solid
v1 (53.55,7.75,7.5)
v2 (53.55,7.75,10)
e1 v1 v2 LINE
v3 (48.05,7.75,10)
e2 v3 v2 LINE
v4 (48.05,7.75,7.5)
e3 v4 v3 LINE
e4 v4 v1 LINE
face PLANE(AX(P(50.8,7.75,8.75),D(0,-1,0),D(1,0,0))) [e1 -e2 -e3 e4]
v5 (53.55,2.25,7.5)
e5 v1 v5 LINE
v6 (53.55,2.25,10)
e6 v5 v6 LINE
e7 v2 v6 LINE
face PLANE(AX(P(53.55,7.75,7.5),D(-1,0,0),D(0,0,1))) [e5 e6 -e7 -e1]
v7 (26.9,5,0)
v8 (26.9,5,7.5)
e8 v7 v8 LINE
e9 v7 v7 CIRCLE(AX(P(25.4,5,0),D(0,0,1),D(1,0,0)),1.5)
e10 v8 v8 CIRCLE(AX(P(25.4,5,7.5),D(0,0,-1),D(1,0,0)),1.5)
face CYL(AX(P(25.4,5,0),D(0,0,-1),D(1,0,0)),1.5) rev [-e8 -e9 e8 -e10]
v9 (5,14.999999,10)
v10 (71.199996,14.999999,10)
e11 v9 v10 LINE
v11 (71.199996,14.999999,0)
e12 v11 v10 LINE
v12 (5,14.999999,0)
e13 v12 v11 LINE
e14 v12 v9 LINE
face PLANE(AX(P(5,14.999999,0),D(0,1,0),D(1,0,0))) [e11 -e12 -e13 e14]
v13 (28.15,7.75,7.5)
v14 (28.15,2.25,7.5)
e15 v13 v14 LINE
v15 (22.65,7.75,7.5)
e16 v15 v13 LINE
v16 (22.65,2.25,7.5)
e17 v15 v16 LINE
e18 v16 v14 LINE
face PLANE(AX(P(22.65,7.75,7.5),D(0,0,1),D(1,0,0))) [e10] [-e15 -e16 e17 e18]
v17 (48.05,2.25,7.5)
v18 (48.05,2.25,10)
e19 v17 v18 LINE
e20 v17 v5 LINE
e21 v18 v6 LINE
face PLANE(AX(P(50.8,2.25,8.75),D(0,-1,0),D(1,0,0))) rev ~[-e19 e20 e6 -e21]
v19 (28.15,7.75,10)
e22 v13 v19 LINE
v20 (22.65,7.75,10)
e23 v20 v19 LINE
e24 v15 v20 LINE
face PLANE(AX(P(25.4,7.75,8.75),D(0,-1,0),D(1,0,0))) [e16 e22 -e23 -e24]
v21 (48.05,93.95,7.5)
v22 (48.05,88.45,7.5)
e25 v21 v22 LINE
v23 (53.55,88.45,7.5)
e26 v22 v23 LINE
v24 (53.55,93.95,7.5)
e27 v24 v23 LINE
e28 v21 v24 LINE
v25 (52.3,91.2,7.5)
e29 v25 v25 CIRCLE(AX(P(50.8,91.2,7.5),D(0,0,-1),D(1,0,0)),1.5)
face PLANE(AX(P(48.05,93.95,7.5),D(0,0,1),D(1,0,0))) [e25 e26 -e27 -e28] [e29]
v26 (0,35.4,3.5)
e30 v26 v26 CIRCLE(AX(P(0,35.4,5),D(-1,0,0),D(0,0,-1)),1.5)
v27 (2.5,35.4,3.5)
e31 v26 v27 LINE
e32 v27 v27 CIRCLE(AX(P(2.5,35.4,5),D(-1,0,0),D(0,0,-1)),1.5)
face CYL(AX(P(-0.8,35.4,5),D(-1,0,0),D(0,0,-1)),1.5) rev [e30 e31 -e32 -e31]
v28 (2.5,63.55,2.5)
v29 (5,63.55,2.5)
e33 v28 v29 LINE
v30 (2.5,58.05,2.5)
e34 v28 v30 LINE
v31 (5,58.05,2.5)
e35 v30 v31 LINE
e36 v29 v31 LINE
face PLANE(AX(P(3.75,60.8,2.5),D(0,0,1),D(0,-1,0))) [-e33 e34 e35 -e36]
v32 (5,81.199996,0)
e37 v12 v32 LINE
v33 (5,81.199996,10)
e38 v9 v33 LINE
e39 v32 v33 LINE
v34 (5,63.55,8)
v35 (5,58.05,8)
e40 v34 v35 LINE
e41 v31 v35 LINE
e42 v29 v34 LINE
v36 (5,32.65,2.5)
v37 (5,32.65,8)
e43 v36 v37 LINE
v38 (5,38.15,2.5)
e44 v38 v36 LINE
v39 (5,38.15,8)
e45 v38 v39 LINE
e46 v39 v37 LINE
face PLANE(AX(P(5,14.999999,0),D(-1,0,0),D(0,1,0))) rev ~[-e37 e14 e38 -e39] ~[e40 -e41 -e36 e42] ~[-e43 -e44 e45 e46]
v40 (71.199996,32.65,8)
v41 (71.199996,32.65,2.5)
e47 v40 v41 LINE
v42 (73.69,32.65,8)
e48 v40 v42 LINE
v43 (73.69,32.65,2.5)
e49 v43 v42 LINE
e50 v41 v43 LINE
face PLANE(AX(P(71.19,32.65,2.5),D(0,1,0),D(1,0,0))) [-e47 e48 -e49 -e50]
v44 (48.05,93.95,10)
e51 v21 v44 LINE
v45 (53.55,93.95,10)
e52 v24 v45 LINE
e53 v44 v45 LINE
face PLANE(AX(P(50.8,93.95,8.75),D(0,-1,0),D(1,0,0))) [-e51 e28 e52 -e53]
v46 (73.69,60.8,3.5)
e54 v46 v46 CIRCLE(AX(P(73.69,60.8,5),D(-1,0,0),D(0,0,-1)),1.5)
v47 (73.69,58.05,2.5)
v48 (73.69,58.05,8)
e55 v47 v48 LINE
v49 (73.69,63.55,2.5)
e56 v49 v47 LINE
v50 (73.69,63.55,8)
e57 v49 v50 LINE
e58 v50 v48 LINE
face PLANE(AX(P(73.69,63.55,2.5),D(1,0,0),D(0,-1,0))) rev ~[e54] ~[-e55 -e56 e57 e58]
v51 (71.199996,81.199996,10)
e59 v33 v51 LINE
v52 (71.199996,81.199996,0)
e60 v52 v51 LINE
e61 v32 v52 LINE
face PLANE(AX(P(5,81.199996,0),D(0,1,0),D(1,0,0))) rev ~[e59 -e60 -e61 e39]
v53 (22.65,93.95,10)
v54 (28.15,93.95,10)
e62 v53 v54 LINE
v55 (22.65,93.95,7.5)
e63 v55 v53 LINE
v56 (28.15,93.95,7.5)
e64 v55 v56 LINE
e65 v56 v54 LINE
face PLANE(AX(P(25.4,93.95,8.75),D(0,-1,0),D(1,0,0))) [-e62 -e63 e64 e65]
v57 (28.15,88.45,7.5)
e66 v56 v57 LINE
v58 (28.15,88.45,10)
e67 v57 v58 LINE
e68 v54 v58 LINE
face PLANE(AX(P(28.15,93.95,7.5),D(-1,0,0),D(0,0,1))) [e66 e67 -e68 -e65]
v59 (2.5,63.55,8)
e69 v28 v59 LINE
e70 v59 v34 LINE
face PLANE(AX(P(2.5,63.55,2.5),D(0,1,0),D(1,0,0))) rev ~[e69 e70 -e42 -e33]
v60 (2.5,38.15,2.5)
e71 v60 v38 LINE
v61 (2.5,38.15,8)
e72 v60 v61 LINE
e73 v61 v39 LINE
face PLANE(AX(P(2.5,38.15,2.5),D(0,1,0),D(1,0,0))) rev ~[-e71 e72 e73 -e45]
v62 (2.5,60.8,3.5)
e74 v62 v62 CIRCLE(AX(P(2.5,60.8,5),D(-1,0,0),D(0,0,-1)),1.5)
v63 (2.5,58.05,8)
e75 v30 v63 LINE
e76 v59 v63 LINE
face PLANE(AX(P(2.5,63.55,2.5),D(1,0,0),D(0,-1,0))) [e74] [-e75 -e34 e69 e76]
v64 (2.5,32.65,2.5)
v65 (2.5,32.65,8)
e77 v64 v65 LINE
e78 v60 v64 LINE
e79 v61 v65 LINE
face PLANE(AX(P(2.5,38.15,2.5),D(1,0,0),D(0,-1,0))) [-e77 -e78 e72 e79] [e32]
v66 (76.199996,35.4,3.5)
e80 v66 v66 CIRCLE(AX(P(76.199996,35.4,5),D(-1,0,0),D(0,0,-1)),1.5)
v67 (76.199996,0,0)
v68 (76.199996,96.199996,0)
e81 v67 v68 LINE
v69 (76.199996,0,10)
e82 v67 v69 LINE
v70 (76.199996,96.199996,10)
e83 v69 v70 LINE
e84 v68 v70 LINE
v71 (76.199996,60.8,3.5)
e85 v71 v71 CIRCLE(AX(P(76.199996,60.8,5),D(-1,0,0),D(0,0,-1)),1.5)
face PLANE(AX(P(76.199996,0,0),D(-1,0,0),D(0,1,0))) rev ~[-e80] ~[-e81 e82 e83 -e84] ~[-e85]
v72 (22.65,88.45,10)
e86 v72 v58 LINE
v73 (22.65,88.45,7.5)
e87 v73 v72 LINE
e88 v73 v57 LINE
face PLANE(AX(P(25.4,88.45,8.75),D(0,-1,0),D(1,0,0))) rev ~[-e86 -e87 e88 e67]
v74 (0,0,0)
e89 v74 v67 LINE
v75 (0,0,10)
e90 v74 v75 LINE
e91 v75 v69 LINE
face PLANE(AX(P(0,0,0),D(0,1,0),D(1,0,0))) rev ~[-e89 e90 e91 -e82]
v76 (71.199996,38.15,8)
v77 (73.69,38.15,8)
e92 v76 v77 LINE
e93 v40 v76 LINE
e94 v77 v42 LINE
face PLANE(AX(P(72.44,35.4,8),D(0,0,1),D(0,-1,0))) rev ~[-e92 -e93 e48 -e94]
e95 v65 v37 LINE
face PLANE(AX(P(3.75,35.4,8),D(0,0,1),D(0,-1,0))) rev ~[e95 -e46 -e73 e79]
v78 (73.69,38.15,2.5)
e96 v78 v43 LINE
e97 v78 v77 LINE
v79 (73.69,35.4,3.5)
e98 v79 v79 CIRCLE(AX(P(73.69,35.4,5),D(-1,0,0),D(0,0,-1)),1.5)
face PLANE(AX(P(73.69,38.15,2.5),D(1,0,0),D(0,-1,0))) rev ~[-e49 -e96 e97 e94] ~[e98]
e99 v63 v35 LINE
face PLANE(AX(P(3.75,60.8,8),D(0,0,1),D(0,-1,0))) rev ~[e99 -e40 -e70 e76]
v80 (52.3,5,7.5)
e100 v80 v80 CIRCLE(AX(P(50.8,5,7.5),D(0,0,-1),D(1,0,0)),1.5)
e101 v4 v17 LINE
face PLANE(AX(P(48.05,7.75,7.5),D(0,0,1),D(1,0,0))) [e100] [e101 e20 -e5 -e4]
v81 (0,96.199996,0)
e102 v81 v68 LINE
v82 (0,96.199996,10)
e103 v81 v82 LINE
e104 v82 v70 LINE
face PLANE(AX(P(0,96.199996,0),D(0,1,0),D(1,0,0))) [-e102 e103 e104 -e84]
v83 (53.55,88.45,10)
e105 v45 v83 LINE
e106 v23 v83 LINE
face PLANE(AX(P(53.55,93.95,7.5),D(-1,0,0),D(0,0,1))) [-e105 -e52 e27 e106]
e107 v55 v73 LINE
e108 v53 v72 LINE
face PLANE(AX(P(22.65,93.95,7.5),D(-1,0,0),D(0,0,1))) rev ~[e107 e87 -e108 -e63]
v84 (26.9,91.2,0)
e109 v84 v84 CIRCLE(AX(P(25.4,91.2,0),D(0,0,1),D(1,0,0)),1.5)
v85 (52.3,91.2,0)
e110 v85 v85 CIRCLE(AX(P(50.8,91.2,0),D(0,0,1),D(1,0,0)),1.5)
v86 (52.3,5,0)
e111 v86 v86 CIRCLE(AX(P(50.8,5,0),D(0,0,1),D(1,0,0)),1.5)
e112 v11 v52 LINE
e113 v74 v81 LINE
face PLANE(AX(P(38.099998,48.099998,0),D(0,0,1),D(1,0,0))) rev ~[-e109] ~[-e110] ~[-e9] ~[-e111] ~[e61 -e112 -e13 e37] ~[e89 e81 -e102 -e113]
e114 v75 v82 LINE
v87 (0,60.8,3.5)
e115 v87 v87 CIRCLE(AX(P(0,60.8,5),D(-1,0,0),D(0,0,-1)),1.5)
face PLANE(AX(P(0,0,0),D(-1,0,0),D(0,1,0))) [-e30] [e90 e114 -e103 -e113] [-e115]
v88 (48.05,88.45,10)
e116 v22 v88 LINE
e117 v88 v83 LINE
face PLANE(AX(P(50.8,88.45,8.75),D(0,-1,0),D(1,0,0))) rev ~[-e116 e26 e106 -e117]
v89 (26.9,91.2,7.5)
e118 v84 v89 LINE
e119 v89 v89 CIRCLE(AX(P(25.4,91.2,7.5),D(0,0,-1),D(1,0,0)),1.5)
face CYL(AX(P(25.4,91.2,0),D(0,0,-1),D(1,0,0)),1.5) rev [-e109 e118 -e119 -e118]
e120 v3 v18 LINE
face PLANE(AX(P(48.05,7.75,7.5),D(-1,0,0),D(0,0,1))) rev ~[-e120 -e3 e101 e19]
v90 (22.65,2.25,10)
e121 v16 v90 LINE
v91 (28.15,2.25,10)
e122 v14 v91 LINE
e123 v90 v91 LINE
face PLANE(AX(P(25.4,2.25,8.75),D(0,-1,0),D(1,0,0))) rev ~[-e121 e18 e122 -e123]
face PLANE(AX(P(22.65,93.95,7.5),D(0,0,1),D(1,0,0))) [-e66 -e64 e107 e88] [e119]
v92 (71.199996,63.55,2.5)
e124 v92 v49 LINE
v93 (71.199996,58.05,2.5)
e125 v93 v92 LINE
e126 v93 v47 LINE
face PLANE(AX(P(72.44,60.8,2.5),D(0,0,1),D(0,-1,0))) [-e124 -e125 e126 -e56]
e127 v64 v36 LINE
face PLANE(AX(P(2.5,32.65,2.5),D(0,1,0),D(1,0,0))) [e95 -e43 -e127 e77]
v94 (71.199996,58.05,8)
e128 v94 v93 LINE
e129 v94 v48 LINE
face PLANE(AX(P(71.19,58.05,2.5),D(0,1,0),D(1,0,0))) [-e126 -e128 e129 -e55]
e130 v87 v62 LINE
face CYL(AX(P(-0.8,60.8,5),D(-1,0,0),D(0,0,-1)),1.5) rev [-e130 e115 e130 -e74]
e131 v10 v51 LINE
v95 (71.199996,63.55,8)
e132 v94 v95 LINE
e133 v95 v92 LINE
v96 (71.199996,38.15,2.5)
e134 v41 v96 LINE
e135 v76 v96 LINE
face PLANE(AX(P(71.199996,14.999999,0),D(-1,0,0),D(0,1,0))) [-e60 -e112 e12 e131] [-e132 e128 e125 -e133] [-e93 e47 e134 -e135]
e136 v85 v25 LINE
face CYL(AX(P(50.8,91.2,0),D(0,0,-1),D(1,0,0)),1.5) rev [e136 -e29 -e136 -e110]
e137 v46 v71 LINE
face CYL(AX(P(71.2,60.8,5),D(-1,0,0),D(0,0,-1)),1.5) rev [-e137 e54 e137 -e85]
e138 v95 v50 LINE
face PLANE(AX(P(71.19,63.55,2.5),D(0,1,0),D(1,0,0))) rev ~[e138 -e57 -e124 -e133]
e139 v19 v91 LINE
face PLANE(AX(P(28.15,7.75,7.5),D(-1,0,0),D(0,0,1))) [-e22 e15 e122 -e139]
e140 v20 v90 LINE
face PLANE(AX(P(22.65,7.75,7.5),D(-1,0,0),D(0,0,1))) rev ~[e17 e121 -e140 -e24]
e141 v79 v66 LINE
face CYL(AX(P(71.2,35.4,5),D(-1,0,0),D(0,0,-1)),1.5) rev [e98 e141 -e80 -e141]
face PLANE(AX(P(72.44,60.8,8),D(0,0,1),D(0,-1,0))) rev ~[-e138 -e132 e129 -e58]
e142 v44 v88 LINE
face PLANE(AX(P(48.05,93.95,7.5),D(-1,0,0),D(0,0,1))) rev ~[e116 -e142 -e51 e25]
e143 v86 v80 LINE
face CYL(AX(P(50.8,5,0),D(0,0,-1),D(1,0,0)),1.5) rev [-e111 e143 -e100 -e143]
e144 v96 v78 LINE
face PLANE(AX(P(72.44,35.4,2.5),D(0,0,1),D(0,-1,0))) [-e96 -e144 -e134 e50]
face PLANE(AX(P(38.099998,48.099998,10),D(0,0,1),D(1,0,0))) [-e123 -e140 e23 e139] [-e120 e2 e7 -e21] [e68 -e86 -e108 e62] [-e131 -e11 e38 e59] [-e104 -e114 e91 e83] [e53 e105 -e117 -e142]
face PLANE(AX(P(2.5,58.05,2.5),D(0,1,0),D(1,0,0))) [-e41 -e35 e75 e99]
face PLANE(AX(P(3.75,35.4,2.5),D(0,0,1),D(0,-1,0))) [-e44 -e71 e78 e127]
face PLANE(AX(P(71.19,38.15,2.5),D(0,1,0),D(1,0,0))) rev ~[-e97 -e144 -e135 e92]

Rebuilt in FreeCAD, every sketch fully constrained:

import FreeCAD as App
import Part
import Sketcher
from FreeCAD import Vector


def add_polygon(sketch, points):
    """Adds a closed chain of lines whose ends are joined by coincident constraints."""
    first, n = sketch.GeometryCount, len(points)
    for a, b in zip(points, points[1:] + points[:1]):
        sketch.addGeometry(Part.LineSegment(App.Vector(*a, 0), App.Vector(*b, 0)), False)
    for i in range(n):
        sketch.addConstraint(Sketcher.Constraint("Coincident", first + i, 2, first + (i + 1) % n, 1))

doc = App.newDocument("Part")
params = doc.addObject("Spreadsheet::Sheet", "Params")
for row, (alias, value) in enumerate([
    ("sketch1_diameter", "3 mm"),
    ("pad1_length", "5 mm"),
    ("sketch2_diameter", "3 mm"),
    ("pad2_length", "5 mm"),
    ("sketch3_diameter", "3 mm"),
    ("pad3_length", "5 mm"),
    ("sketch4_diameter", "3 mm"),
    ("pad4_length", "10 mm"),
    ("sketch5_diameter", "3 mm"),
    ("pad5_length", "10 mm"),
    ("sketch6_diameter", "3 mm"),
    ("pad6_length", "10 mm"),
    ("sketch7_diameter", "3 mm"),
    ("pad7_length", "10 mm"),
    ("sketch8_diameter", "3 mm"),
    ("pad8_length", "5 mm"),
    ("sketch9_width", "5.5 mm"),
    ("sketch9_height", "2.5 mm"),
    ("pad9_length", "5.5 mm"),
    ("sketch10_width", "5.5 mm"),
    ("sketch10_height", "2.5 mm"),
    ("pad10_length", "5.5 mm"),
    ("sketch11_width", "5.5 mm"),
    ("sketch11_height", "2.5 mm"),
    ("pad11_length", "5.5 mm"),
    ("sketch12_width", "5.5 mm"),
    ("sketch12_height", "2.5 mm"),
    ("pad12_length", "5.5 mm"),
    ("sketch13_width", "5.5 mm"),
    ("sketch13_height", "2.5 mm"),
    ("pad13_length", "5.5 mm"),
    ("sketch14_width", "5.5 mm"),
    ("sketch14_height", "2.5 mm"),
    ("pad14_length", "5.5 mm"),
    ("sketch15_width", "5.5 mm"),
    ("sketch15_height", "2.5 mm"),
    ("pad15_length", "5.5 mm"),
    ("sketch16_width", "5.5 mm"),
    ("sketch16_height", "2.5 mm"),
    ("pad16_length", "5.5 mm"),
    ("pad17_length", "10 mm"),
    ("pad18_length", "10 mm"),
], start=1):
    params.set(f"A{row}", alias)
    params.set(f"B{row}", "=" + value)
    params.setAlias(f"B{row}", alias)

body = doc.addObject("PartDesign::Body", "Body")

sketch1 = doc.addObject("Sketcher::SketchObject", "Sketch")
body.addObject(sketch1)
sketch1.AttachmentSupport = (doc.XY_Plane, [""])
sketch1.MapMode = "FlatFace"
sketch1.addGeometry(Part.Circle(Vector(0, 0, 0), Vector(0, 0, 1), 1.5), False)
sketch1.addConstraint(Sketcher.Constraint("Coincident", 0, 3, -1, 1))
sketch1.addConstraint(Sketcher.Constraint("Diameter", 0, 3.0))
sketch1.setExpression("Constraints[1]", "Params.sketch1_diameter")
pad1 = doc.addObject("PartDesign::Pad", "Pad")
body.addObject(pad1)
pad1.Profile = sketch1
pad1.setExpression("Length", "Params.pad1_length")
body2 = doc.addObject("PartDesign::Body", "Body001")
doc.recompute()

body.Placement = App.Placement(Vector(0, 0, 0), App.Rotation(Vector(0, 1, 0), 90))
boolean = doc.addObject("PartDesign::Boolean", "Boolean")
body2.addObject(boolean)
boolean.Type = "Fuse"
boolean.addObjects([body])
body3 = doc.addObject("PartDesign::Body", "Body002")
doc.recompute()

body2.Placement = App.Placement(Vector(71.2, 35.4, 5), App.Rotation(Vector(0, 0, 1), 0))
boolean2 = doc.addObject("PartDesign::Boolean", "Boolean001")
body3.addObject(boolean2)
boolean2.Type = "Fuse"
boolean2.addObjects([body2])
body4 = doc.addObject("PartDesign::Body", "Body003")

sketch2 = doc.addObject("Sketcher::SketchObject", "Sketch001")
body4.addObject(sketch2)
sketch2.AttachmentSupport = (doc.getObject("XY_Plane003"), [""])
sketch2.MapMode = "FlatFace"
sketch2.addGeometry(Part.Circle(Vector(0, 0, 0), Vector(0, 0, 1), 1.5), False)
sketch2.addConstraint(Sketcher.Constraint("Coincident", 0, 3, -1, 1))
sketch2.addConstraint(Sketcher.Constraint("Diameter", 0, 3.0))
sketch2.setExpression("Constraints[1]", "Params.sketch2_diameter")
pad2 = doc.addObject("PartDesign::Pad", "Pad001")
body4.addObject(pad2)
pad2.Profile = sketch2
pad2.setExpression("Length", "Params.pad2_length")
body5 = doc.addObject("PartDesign::Body", "Body004")
doc.recompute()

body4.Placement = App.Placement(Vector(0, 0, 0), App.Rotation(Vector(0, 1, 0), 90))
boolean3 = doc.addObject("PartDesign::Boolean", "Boolean002")
body5.addObject(boolean3)
boolean3.Type = "Fuse"
boolean3.addObjects([body4])
body6 = doc.addObject("PartDesign::Body", "Body005")
doc.recompute()

body5.Placement = App.Placement(Vector(-0.8, 60.8, 5), App.Rotation(Vector(0, 0, 1), 0))
boolean4 = doc.addObject("PartDesign::Boolean", "Boolean003")
body6.addObject(boolean4)
boolean4.Type = "Fuse"
boolean4.addObjects([body5])
body7 = doc.addObject("PartDesign::Body", "Body006")

sketch3 = doc.addObject("Sketcher::SketchObject", "Sketch002")
body7.addObject(sketch3)
sketch3.AttachmentSupport = (doc.getObject("XY_Plane006"), [""])
sketch3.MapMode = "FlatFace"
sketch3.addGeometry(Part.Circle(Vector(0, 0, 0), Vector(0, 0, 1), 1.5), False)
sketch3.addConstraint(Sketcher.Constraint("Coincident", 0, 3, -1, 1))
sketch3.addConstraint(Sketcher.Constraint("Diameter", 0, 3.0))
sketch3.setExpression("Constraints[1]", "Params.sketch3_diameter")
pad3 = doc.addObject("PartDesign::Pad", "Pad002")
body7.addObject(pad3)
pad3.Profile = sketch3
pad3.setExpression("Length", "Params.pad3_length")
body8 = doc.addObject("PartDesign::Body", "Body007")
doc.recompute()

body7.Placement = App.Placement(Vector(0, 0, 0), App.Rotation(Vector(0, 1, 0), 90))
boolean5 = doc.addObject("PartDesign::Boolean", "Boolean004")
body8.addObject(boolean5)
boolean5.Type = "Fuse"
boolean5.addObjects([body7])
body9 = doc.addObject("PartDesign::Body", "Body008")
doc.recompute()

body8.Placement = App.Placement(Vector(-0.8, 35.4, 5), App.Rotation(Vector(0, 0, 1), 0))
boolean6 = doc.addObject("PartDesign::Boolean", "Boolean005")
body9.addObject(boolean6)
boolean6.Type = "Fuse"
boolean6.addObjects([body8])
body10 = doc.addObject("PartDesign::Body", "Body009")

sketch4 = doc.addObject("Sketcher::SketchObject", "Sketch003")
body10.addObject(sketch4)
sketch4.AttachmentSupport = (doc.getObject("XY_Plane009"), [""])
sketch4.MapMode = "FlatFace"
sketch4.addGeometry(Part.Circle(Vector(25.4, 5, 0), Vector(0, 0, 1), 1.5), False)
sketch4.addConstraint(Sketcher.Constraint("Diameter", 0, 3.0))
sketch4.addConstraint(Sketcher.Constraint("DistanceY", -1, 1, 0, 3, 5.0))
sketch4.addConstraint(Sketcher.Constraint("DistanceX", -1, 1, 0, 3, 25.4))
sketch4.setExpression("Constraints[0]", "Params.sketch4_diameter")
pad4 = doc.addObject("PartDesign::Pad", "Pad003")
body10.addObject(pad4)
pad4.Profile = sketch4
pad4.setExpression("Length", "Params.pad4_length")
body11 = doc.addObject("PartDesign::Body", "Body010")

sketch5 = doc.addObject("Sketcher::SketchObject", "Sketch004")
body11.addObject(sketch5)
sketch5.AttachmentSupport = (doc.getObject("XY_Plane010"), [""])
sketch5.MapMode = "FlatFace"
sketch5.addGeometry(Part.Circle(Vector(50.8, 5, 0), Vector(0, 0, 1), 1.5), False)
sketch5.addConstraint(Sketcher.Constraint("Diameter", 0, 3.0))
sketch5.addConstraint(Sketcher.Constraint("DistanceY", -1, 1, 0, 3, 5.0))
sketch5.addConstraint(Sketcher.Constraint("DistanceX", -1, 1, 0, 3, 50.8))
sketch5.setExpression("Constraints[0]", "Params.sketch5_diameter")
pad5 = doc.addObject("PartDesign::Pad", "Pad004")
body11.addObject(pad5)
pad5.Profile = sketch5
pad5.setExpression("Length", "Params.pad5_length")
body12 = doc.addObject("PartDesign::Body", "Body011")

sketch6 = doc.addObject("Sketcher::SketchObject", "Sketch005")
body12.addObject(sketch6)
sketch6.AttachmentSupport = (doc.getObject("XY_Plane011"), [""])
sketch6.MapMode = "FlatFace"
sketch6.addGeometry(Part.Circle(Vector(25.4, 91.2, 0), Vector(0, 0, 1), 1.5), False)
sketch6.addConstraint(Sketcher.Constraint("Diameter", 0, 3.0))
sketch6.addConstraint(Sketcher.Constraint("DistanceX", -1, 1, 0, 3, 25.4))
sketch6.addConstraint(Sketcher.Constraint("DistanceY", -1, 1, 0, 3, 91.2))
sketch6.setExpression("Constraints[0]", "Params.sketch6_diameter")
pad6 = doc.addObject("PartDesign::Pad", "Pad005")
body12.addObject(pad6)
pad6.Profile = sketch6
pad6.setExpression("Length", "Params.pad6_length")
body13 = doc.addObject("PartDesign::Body", "Body012")

sketch7 = doc.addObject("Sketcher::SketchObject", "Sketch006")
body13.addObject(sketch7)
sketch7.AttachmentSupport = (doc.getObject("XY_Plane012"), [""])
sketch7.MapMode = "FlatFace"
sketch7.addGeometry(Part.Circle(Vector(50.8, 91.2, 0), Vector(0, 0, 1), 1.5), False)
sketch7.addConstraint(Sketcher.Constraint("Diameter", 0, 3.0))
sketch7.addConstraint(Sketcher.Constraint("DistanceX", -1, 1, 0, 3, 50.8))
sketch7.addConstraint(Sketcher.Constraint("DistanceY", -1, 1, 0, 3, 91.2))
sketch7.setExpression("Constraints[0]", "Params.sketch7_diameter")
pad7 = doc.addObject("PartDesign::Pad", "Pad006")
body13.addObject(pad7)
pad7.Profile = sketch7
pad7.setExpression("Length", "Params.pad7_length")
body14 = doc.addObject("PartDesign::Body", "Body013")

sketch8 = doc.addObject("Sketcher::SketchObject", "Sketch007")
body14.addObject(sketch8)
sketch8.AttachmentSupport = (doc.getObject("XY_Plane013"), [""])
sketch8.MapMode = "FlatFace"
sketch8.addGeometry(Part.Circle(Vector(0, 0, 0), Vector(0, 0, 1), 1.5), False)
sketch8.addConstraint(Sketcher.Constraint("Coincident", 0, 3, -1, 1))
sketch8.addConstraint(Sketcher.Constraint("Diameter", 0, 3.0))
sketch8.setExpression("Constraints[1]", "Params.sketch8_diameter")
pad8 = doc.addObject("PartDesign::Pad", "Pad007")
body14.addObject(pad8)
pad8.Profile = sketch8
pad8.setExpression("Length", "Params.pad8_length")
body15 = doc.addObject("PartDesign::Body", "Body014")
doc.recompute()

body14.Placement = App.Placement(Vector(0, 0, 0), App.Rotation(Vector(0, 1, 0), 90))
boolean7 = doc.addObject("PartDesign::Boolean", "Boolean006")
body15.addObject(boolean7)
boolean7.Type = "Fuse"
boolean7.addObjects([body14])
body16 = doc.addObject("PartDesign::Body", "Body015")
doc.recompute()

body15.Placement = App.Placement(Vector(71.2, 60.8, 5), App.Rotation(Vector(0, 0, 1), 0))
boolean8 = doc.addObject("PartDesign::Boolean", "Boolean007")
body16.addObject(boolean8)
boolean8.Type = "Fuse"
boolean8.addObjects([body15])
body17 = doc.addObject("PartDesign::Body", "Body016")

sketch9 = doc.addObject("Sketcher::SketchObject", "Sketch008")
body17.addObject(sketch9)
sketch9.AttachmentSupport = (doc.getObject("XY_Plane016"), [""])
sketch9.MapMode = "FlatFace"
add_polygon(sketch9, [(0, 2.5), (0, 0), (5.5, 0), (5.5, 2.5)])
sketch9.addConstraint(Sketcher.Constraint("Vertical", 0))
sketch9.addConstraint(Sketcher.Constraint("Horizontal", 1))
sketch9.addConstraint(Sketcher.Constraint("Vertical", 2))
sketch9.addConstraint(Sketcher.Constraint("Horizontal", 3))
sketch9.addConstraint(Sketcher.Constraint("Coincident", 0, 2, -1, 1))
sketch9.addConstraint(Sketcher.Constraint("DistanceX", 1, 1, 1, 2, 5.5))
sketch9.addConstraint(Sketcher.Constraint("DistanceY", 0, 2, 0, 1, 2.5))
sketch9.setExpression("Constraints[9]", "Params.sketch9_width")
sketch9.setExpression("Constraints[10]", "Params.sketch9_height")
pad9 = doc.addObject("PartDesign::Pad", "Pad008")
body17.addObject(pad9)
pad9.Profile = sketch9
pad9.setExpression("Length", "Params.pad9_length")
body18 = doc.addObject("PartDesign::Body", "Body017")
doc.recompute()

body17.Placement = App.Placement(Vector(71.19, 63.55, 2.5), App.Rotation(Vector(0, 0, 1), 270))
boolean9 = doc.addObject("PartDesign::Boolean", "Boolean008")
body18.addObject(boolean9)
boolean9.Type = "Fuse"
boolean9.addObjects([body17])
body19 = doc.addObject("PartDesign::Body", "Body018")

sketch10 = doc.addObject("Sketcher::SketchObject", "Sketch009")
body19.addObject(sketch10)
sketch10.AttachmentSupport = (doc.getObject("XY_Plane018"), [""])
sketch10.MapMode = "FlatFace"
add_polygon(sketch10, [(0, 2.5), (0, 0), (5.5, 0), (5.5, 2.5)])
sketch10.addConstraint(Sketcher.Constraint("Vertical", 0))
sketch10.addConstraint(Sketcher.Constraint("Horizontal", 1))
sketch10.addConstraint(Sketcher.Constraint("Vertical", 2))
sketch10.addConstraint(Sketcher.Constraint("Horizontal", 3))
sketch10.addConstraint(Sketcher.Constraint("Coincident", 0, 2, -1, 1))
sketch10.addConstraint(Sketcher.Constraint("DistanceX", 1, 1, 1, 2, 5.5))
sketch10.addConstraint(Sketcher.Constraint("DistanceY", 0, 2, 0, 1, 2.5))
sketch10.setExpression("Constraints[9]", "Params.sketch10_width")
sketch10.setExpression("Constraints[10]", "Params.sketch10_height")
pad10 = doc.addObject("PartDesign::Pad", "Pad009")
body19.addObject(pad10)
pad10.Profile = sketch10
pad10.setExpression("Length", "Params.pad10_length")
body20 = doc.addObject("PartDesign::Body", "Body019")
doc.recompute()

body19.Placement = App.Placement(Vector(2.5, 63.55, 2.5), App.Rotation(Vector(0, 0, 1), 270))
boolean10 = doc.addObject("PartDesign::Boolean", "Boolean009")
body20.addObject(boolean10)
boolean10.Type = "Fuse"
boolean10.addObjects([body19])
body21 = doc.addObject("PartDesign::Body", "Body020")

sketch11 = doc.addObject("Sketcher::SketchObject", "Sketch010")
body21.addObject(sketch11)
sketch11.AttachmentSupport = (doc.getObject("XY_Plane020"), [""])
sketch11.MapMode = "FlatFace"
add_polygon(sketch11, [(0, 2.5), (0, 0), (5.5, 0), (5.5, 2.5)])
sketch11.addConstraint(Sketcher.Constraint("Vertical", 0))
sketch11.addConstraint(Sketcher.Constraint("Horizontal", 1))
sketch11.addConstraint(Sketcher.Constraint("Vertical", 2))
sketch11.addConstraint(Sketcher.Constraint("Horizontal", 3))
sketch11.addConstraint(Sketcher.Constraint("Coincident", 0, 2, -1, 1))
sketch11.addConstraint(Sketcher.Constraint("DistanceX", 1, 1, 1, 2, 5.5))
sketch11.addConstraint(Sketcher.Constraint("DistanceY", 0, 2, 0, 1, 2.5))
sketch11.setExpression("Constraints[9]", "Params.sketch11_width")
sketch11.setExpression("Constraints[10]", "Params.sketch11_height")
pad11 = doc.addObject("PartDesign::Pad", "Pad010")
body21.addObject(pad11)
pad11.Profile = sketch11
pad11.setExpression("Length", "Params.pad11_length")
body22 = doc.addObject("PartDesign::Body", "Body021")
doc.recompute()

body21.Placement = App.Placement(Vector(2.5, 38.15, 2.5), App.Rotation(Vector(0, 0, 1), 270))
boolean11 = doc.addObject("PartDesign::Boolean", "Boolean010")
body22.addObject(boolean11)
boolean11.Type = "Fuse"
boolean11.addObjects([body21])
body23 = doc.addObject("PartDesign::Body", "Body022")

sketch12 = doc.addObject("Sketcher::SketchObject", "Sketch011")
body23.addObject(sketch12)
sketch12.AttachmentSupport = (doc.getObject("XY_Plane022"), [""])
sketch12.MapMode = "FlatFace"
add_polygon(sketch12, [(0, 2.5), (0, 0), (5.5, 0), (5.5, 2.5)])
sketch12.addConstraint(Sketcher.Constraint("Vertical", 0))
sketch12.addConstraint(Sketcher.Constraint("Horizontal", 1))
sketch12.addConstraint(Sketcher.Constraint("Vertical", 2))
sketch12.addConstraint(Sketcher.Constraint("Horizontal", 3))
sketch12.addConstraint(Sketcher.Constraint("Coincident", 0, 2, -1, 1))
sketch12.addConstraint(Sketcher.Constraint("DistanceX", 1, 1, 1, 2, 5.5))
sketch12.addConstraint(Sketcher.Constraint("DistanceY", 0, 2, 0, 1, 2.5))
sketch12.setExpression("Constraints[9]", "Params.sketch12_width")
sketch12.setExpression("Constraints[10]", "Params.sketch12_height")
pad12 = doc.addObject("PartDesign::Pad", "Pad011")
body23.addObject(pad12)
pad12.Profile = sketch12
pad12.setExpression("Length", "Params.pad12_length")
body24 = doc.addObject("PartDesign::Body", "Body023")
doc.recompute()

body23.Placement = App.Placement(Vector(0, 0, 0), App.Rotation(Vector(1, 0, 0), 90))
boolean12 = doc.addObject("PartDesign::Boolean", "Boolean011")
body24.addObject(boolean12)
boolean12.Type = "Fuse"
boolean12.addObjects([body23])
body25 = doc.addObject("PartDesign::Body", "Body024")
doc.recompute()

body24.Placement = App.Placement(Vector(22.65, 7.75, 7.5), App.Rotation(Vector(0, 0, 1), 0))
boolean13 = doc.addObject("PartDesign::Boolean", "Boolean012")
body25.addObject(boolean13)
boolean13.Type = "Fuse"
boolean13.addObjects([body24])
body26 = doc.addObject("PartDesign::Body", "Body025")

sketch13 = doc.addObject("Sketcher::SketchObject", "Sketch012")
body26.addObject(sketch13)
sketch13.AttachmentSupport = (doc.getObject("XY_Plane025"), [""])
sketch13.MapMode = "FlatFace"
add_polygon(sketch13, [(0, 2.5), (0, 0), (5.5, 0), (5.5, 2.5)])
sketch13.addConstraint(Sketcher.Constraint("Vertical", 0))
sketch13.addConstraint(Sketcher.Constraint("Horizontal", 1))
sketch13.addConstraint(Sketcher.Constraint("Vertical", 2))
sketch13.addConstraint(Sketcher.Constraint("Horizontal", 3))
sketch13.addConstraint(Sketcher.Constraint("Coincident", 0, 2, -1, 1))
sketch13.addConstraint(Sketcher.Constraint("DistanceX", 1, 1, 1, 2, 5.5))
sketch13.addConstraint(Sketcher.Constraint("DistanceY", 0, 2, 0, 1, 2.5))
sketch13.setExpression("Constraints[9]", "Params.sketch13_width")
sketch13.setExpression("Constraints[10]", "Params.sketch13_height")
pad13 = doc.addObject("PartDesign::Pad", "Pad012")
body26.addObject(pad13)
pad13.Profile = sketch13
pad13.setExpression("Length", "Params.pad13_length")
body27 = doc.addObject("PartDesign::Body", "Body026")
doc.recompute()

body26.Placement = App.Placement(Vector(0, 0, 0), App.Rotation(Vector(1, 0, 0), 90))
boolean14 = doc.addObject("PartDesign::Boolean", "Boolean013")
body27.addObject(boolean14)
boolean14.Type = "Fuse"
boolean14.addObjects([body26])
body28 = doc.addObject("PartDesign::Body", "Body027")
doc.recompute()

body27.Placement = App.Placement(Vector(48.05, 7.75, 7.5), App.Rotation(Vector(0, 0, 1), 0))
boolean15 = doc.addObject("PartDesign::Boolean", "Boolean014")
body28.addObject(boolean15)
boolean15.Type = "Fuse"
boolean15.addObjects([body27])
body29 = doc.addObject("PartDesign::Body", "Body028")

sketch14 = doc.addObject("Sketcher::SketchObject", "Sketch013")
body29.addObject(sketch14)
sketch14.AttachmentSupport = (doc.getObject("XY_Plane028"), [""])
sketch14.MapMode = "FlatFace"
add_polygon(sketch14, [(0, 2.5), (0, 0), (5.5, 0), (5.5, 2.5)])
sketch14.addConstraint(Sketcher.Constraint("Vertical", 0))
sketch14.addConstraint(Sketcher.Constraint("Horizontal", 1))
sketch14.addConstraint(Sketcher.Constraint("Vertical", 2))
sketch14.addConstraint(Sketcher.Constraint("Horizontal", 3))
sketch14.addConstraint(Sketcher.Constraint("Coincident", 0, 2, -1, 1))
sketch14.addConstraint(Sketcher.Constraint("DistanceX", 1, 1, 1, 2, 5.5))
sketch14.addConstraint(Sketcher.Constraint("DistanceY", 0, 2, 0, 1, 2.5))
sketch14.setExpression("Constraints[9]", "Params.sketch14_width")
sketch14.setExpression("Constraints[10]", "Params.sketch14_height")
pad14 = doc.addObject("PartDesign::Pad", "Pad013")
body29.addObject(pad14)
pad14.Profile = sketch14
pad14.setExpression("Length", "Params.pad14_length")
body30 = doc.addObject("PartDesign::Body", "Body029")
doc.recompute()

body29.Placement = App.Placement(Vector(0, 0, 0), App.Rotation(Vector(1, 0, 0), 90))
boolean16 = doc.addObject("PartDesign::Boolean", "Boolean015")
body30.addObject(boolean16)
boolean16.Type = "Fuse"
boolean16.addObjects([body29])
body31 = doc.addObject("PartDesign::Body", "Body030")
doc.recompute()

body30.Placement = App.Placement(Vector(22.65, 93.95, 7.5), App.Rotation(Vector(0, 0, 1), 0))
boolean17 = doc.addObject("PartDesign::Boolean", "Boolean016")
body31.addObject(boolean17)
boolean17.Type = "Fuse"
boolean17.addObjects([body30])
body32 = doc.addObject("PartDesign::Body", "Body031")

sketch15 = doc.addObject("Sketcher::SketchObject", "Sketch014")
body32.addObject(sketch15)
sketch15.AttachmentSupport = (doc.getObject("XY_Plane031"), [""])
sketch15.MapMode = "FlatFace"
add_polygon(sketch15, [(0, 2.5), (0, 0), (5.5, 0), (5.5, 2.5)])
sketch15.addConstraint(Sketcher.Constraint("Vertical", 0))
sketch15.addConstraint(Sketcher.Constraint("Horizontal", 1))
sketch15.addConstraint(Sketcher.Constraint("Vertical", 2))
sketch15.addConstraint(Sketcher.Constraint("Horizontal", 3))
sketch15.addConstraint(Sketcher.Constraint("Coincident", 0, 2, -1, 1))
sketch15.addConstraint(Sketcher.Constraint("DistanceX", 1, 1, 1, 2, 5.5))
sketch15.addConstraint(Sketcher.Constraint("DistanceY", 0, 2, 0, 1, 2.5))
sketch15.setExpression("Constraints[9]", "Params.sketch15_width")
sketch15.setExpression("Constraints[10]", "Params.sketch15_height")
pad15 = doc.addObject("PartDesign::Pad", "Pad014")
body32.addObject(pad15)
pad15.Profile = sketch15
pad15.setExpression("Length", "Params.pad15_length")
body33 = doc.addObject("PartDesign::Body", "Body032")
doc.recompute()

body32.Placement = App.Placement(Vector(0, 0, 0), App.Rotation(Vector(1, 0, 0), 90))
boolean18 = doc.addObject("PartDesign::Boolean", "Boolean017")
body33.addObject(boolean18)
boolean18.Type = "Fuse"
boolean18.addObjects([body32])
body34 = doc.addObject("PartDesign::Body", "Body033")
doc.recompute()

body33.Placement = App.Placement(Vector(48.05, 93.95, 7.5), App.Rotation(Vector(0, 0, 1), 0))
boolean19 = doc.addObject("PartDesign::Boolean", "Boolean018")
body34.addObject(boolean19)
boolean19.Type = "Fuse"
boolean19.addObjects([body33])
body35 = doc.addObject("PartDesign::Body", "Body034")

sketch16 = doc.addObject("Sketcher::SketchObject", "Sketch015")
body35.addObject(sketch16)
sketch16.AttachmentSupport = (doc.getObject("XY_Plane034"), [""])
sketch16.MapMode = "FlatFace"
add_polygon(sketch16, [(0, 2.5), (0, 0), (5.5, 0), (5.5, 2.5)])
sketch16.addConstraint(Sketcher.Constraint("Vertical", 0))
sketch16.addConstraint(Sketcher.Constraint("Horizontal", 1))
sketch16.addConstraint(Sketcher.Constraint("Vertical", 2))
sketch16.addConstraint(Sketcher.Constraint("Horizontal", 3))
sketch16.addConstraint(Sketcher.Constraint("Coincident", 0, 2, -1, 1))
sketch16.addConstraint(Sketcher.Constraint("DistanceX", 1, 1, 1, 2, 5.5))
sketch16.addConstraint(Sketcher.Constraint("DistanceY", 0, 2, 0, 1, 2.5))
sketch16.setExpression("Constraints[9]", "Params.sketch16_width")
sketch16.setExpression("Constraints[10]", "Params.sketch16_height")
pad16 = doc.addObject("PartDesign::Pad", "Pad015")
body35.addObject(pad16)
pad16.Profile = sketch16
pad16.setExpression("Length", "Params.pad16_length")
body36 = doc.addObject("PartDesign::Body", "Body035")
doc.recompute()

body35.Placement = App.Placement(Vector(71.19, 38.15, 2.5), App.Rotation(Vector(0, 0, 1), 270))
boolean20 = doc.addObject("PartDesign::Boolean", "Boolean019")
body36.addObject(boolean20)
boolean20.Type = "Fuse"
boolean20.addObjects([body35])
body37 = doc.addObject("PartDesign::Body", "Body036")

sketch17 = doc.addObject("Sketcher::SketchObject", "Sketch016")
body37.addObject(sketch17)
sketch17.AttachmentSupport = (doc.getObject("XY_Plane036"), [""])
sketch17.MapMode = "FlatFace"
add_polygon(sketch17, [(5, 81.199996), (5, 14.999999), (71.199996, 14.999999), (71.199996, 81.199996)])
sketch17.addConstraint(Sketcher.Constraint("Vertical", 0))
sketch17.addConstraint(Sketcher.Constraint("Horizontal", 1))
sketch17.addConstraint(Sketcher.Constraint("Vertical", 2))
sketch17.addConstraint(Sketcher.Constraint("Horizontal", 3))
sketch17.addConstraint(Sketcher.Constraint("Equal", 3, 0))
sketch17.addConstraint(Sketcher.Constraint("DistanceX", -1, 1, 0, 2, 5.0))
sketch17.addConstraint(Sketcher.Constraint("DistanceY", -1, 1, 0, 2, 14.999999))
sketch17.addConstraint(Sketcher.Constraint("DistanceX", 1, 1, 1, 2, 66.199997))
pad17 = doc.addObject("PartDesign::Pad", "Pad016")
body37.addObject(pad17)
pad17.Profile = sketch17
pad17.setExpression("Length", "Params.pad17_length")
body38 = doc.addObject("PartDesign::Body", "Body037")

sketch18 = doc.addObject("Sketcher::SketchObject", "Sketch017")
body38.addObject(sketch18)
sketch18.AttachmentSupport = (doc.getObject("XY_Plane037"), [""])
sketch18.MapMode = "FlatFace"
add_polygon(sketch18, [(0, 96.199996), (0, 0), (76.199996, 0), (76.199996, 96.199996)])
sketch18.addConstraint(Sketcher.Constraint("Vertical", 0))
sketch18.addConstraint(Sketcher.Constraint("Horizontal", 1))
sketch18.addConstraint(Sketcher.Constraint("Vertical", 2))
sketch18.addConstraint(Sketcher.Constraint("Horizontal", 3))
sketch18.addConstraint(Sketcher.Constraint("Coincident", 0, 2, -1, 1))
sketch18.addConstraint(Sketcher.Constraint("DistanceX", 1, 1, 1, 2, 76.199997))
sketch18.addConstraint(Sketcher.Constraint("DistanceY", 0, 2, 0, 1, 96.199997))
pad18 = doc.addObject("PartDesign::Pad", "Pad017")
body38.addObject(pad18)
pad18.Profile = sketch18
pad18.setExpression("Length", "Params.pad18_length")
doc.recompute()

boolean21 = doc.addObject("PartDesign::Boolean", "Boolean020")
body38.addObject(boolean21)
boolean21.Type = "Cut"
boolean21.addObjects([body37])
doc.recompute()

boolean22 = doc.addObject("PartDesign::Boolean", "Boolean021")
body38.addObject(boolean22)
boolean22.Type = "Cut"
boolean22.addObjects([body36])
doc.recompute()

boolean23 = doc.addObject("PartDesign::Boolean", "Boolean022")
body38.addObject(boolean23)
boolean23.Type = "Cut"
boolean23.addObjects([body34])
doc.recompute()

boolean24 = doc.addObject("PartDesign::Boolean", "Boolean023")
body38.addObject(boolean24)
boolean24.Type = "Cut"
boolean24.addObjects([body31])
doc.recompute()

boolean25 = doc.addObject("PartDesign::Boolean", "Boolean024")
body38.addObject(boolean25)
boolean25.Type = "Cut"
boolean25.addObjects([body28])
doc.recompute()

boolean26 = doc.addObject("PartDesign::Boolean", "Boolean025")
body38.addObject(boolean26)
boolean26.Type = "Cut"
boolean26.addObjects([body25])
doc.recompute()

boolean27 = doc.addObject("PartDesign::Boolean", "Boolean026")
body38.addObject(boolean27)
boolean27.Type = "Cut"
boolean27.addObjects([body22])
doc.recompute()

boolean28 = doc.addObject("PartDesign::Boolean", "Boolean027")
body38.addObject(boolean28)
boolean28.Type = "Cut"
boolean28.addObjects([body20])
doc.recompute()

boolean29 = doc.addObject("PartDesign::Boolean", "Boolean028")
body38.addObject(boolean29)
boolean29.Type = "Cut"
boolean29.addObjects([body18])
doc.recompute()

boolean30 = doc.addObject("PartDesign::Boolean", "Boolean029")
body38.addObject(boolean30)
boolean30.Type = "Cut"
boolean30.addObjects([body16])
doc.recompute()

boolean31 = doc.addObject("PartDesign::Boolean", "Boolean030")
body38.addObject(boolean31)
boolean31.Type = "Cut"
boolean31.addObjects([body13])
doc.recompute()

boolean32 = doc.addObject("PartDesign::Boolean", "Boolean031")
body38.addObject(boolean32)
boolean32.Type = "Cut"
boolean32.addObjects([body12])
doc.recompute()

boolean33 = doc.addObject("PartDesign::Boolean", "Boolean032")
body38.addObject(boolean33)
boolean33.Type = "Cut"
boolean33.addObjects([body11])
doc.recompute()

boolean34 = doc.addObject("PartDesign::Boolean", "Boolean033")
body38.addObject(boolean34)
boolean34.Type = "Cut"
boolean34.addObjects([body10])
doc.recompute()

boolean35 = doc.addObject("PartDesign::Boolean", "Boolean034")
body38.addObject(boolean35)
boolean35.Type = "Cut"
boolean35.addObjects([body9])
doc.recompute()

boolean36 = doc.addObject("PartDesign::Boolean", "Boolean035")
body38.addObject(boolean36)
boolean36.Type = "Cut"
boolean36.addObjects([body6])
doc.recompute()

boolean37 = doc.addObject("PartDesign::Boolean", "Boolean036")
body38.addObject(boolean37)
boolean37.Type = "Cut"
boolean37.addObjects([body3])

doc.recompute()
